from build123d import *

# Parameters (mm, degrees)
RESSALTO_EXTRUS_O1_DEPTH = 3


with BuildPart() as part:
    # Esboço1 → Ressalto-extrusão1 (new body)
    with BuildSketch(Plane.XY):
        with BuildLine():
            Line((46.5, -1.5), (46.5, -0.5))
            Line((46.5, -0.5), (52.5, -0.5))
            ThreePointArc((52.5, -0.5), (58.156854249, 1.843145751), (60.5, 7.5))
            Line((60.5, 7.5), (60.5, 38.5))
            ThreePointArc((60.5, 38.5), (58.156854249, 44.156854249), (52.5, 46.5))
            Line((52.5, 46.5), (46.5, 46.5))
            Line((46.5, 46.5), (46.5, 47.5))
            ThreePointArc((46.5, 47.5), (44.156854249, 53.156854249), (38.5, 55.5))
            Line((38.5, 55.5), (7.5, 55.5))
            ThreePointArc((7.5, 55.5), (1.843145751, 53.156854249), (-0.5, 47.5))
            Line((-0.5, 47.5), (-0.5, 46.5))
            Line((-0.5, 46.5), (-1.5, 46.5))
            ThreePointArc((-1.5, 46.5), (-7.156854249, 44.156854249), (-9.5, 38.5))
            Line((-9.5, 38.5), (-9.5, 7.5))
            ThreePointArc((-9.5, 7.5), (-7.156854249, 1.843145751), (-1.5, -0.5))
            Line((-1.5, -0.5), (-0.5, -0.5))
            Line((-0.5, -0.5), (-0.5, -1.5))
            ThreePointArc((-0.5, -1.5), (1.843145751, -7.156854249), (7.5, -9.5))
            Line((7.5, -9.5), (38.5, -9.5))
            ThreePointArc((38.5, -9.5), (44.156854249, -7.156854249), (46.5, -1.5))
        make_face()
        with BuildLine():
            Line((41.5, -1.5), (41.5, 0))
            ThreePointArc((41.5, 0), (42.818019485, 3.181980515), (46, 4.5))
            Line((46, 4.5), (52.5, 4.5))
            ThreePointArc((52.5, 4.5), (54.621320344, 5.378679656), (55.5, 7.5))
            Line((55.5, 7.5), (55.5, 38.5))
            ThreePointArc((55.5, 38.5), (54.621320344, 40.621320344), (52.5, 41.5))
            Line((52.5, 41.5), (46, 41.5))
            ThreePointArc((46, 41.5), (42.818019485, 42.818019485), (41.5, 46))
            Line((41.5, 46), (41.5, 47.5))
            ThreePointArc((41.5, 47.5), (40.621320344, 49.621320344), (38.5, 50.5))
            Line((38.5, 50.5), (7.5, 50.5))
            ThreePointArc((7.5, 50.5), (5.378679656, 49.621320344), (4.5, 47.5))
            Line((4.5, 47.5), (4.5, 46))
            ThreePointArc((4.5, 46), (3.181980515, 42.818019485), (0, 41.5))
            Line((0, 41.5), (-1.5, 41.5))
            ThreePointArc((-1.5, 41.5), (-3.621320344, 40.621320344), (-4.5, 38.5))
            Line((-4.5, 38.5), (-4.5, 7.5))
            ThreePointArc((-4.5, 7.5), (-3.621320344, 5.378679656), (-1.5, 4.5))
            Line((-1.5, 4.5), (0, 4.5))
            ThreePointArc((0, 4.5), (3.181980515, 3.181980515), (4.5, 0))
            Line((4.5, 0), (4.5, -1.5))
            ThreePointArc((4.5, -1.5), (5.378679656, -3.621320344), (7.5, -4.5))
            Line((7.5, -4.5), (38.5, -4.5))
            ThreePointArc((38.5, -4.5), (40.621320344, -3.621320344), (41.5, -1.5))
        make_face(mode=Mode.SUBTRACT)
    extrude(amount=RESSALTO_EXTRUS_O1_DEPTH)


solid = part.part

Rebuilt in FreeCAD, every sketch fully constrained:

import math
import FreeCAD as App
import Part
import Sketcher
from FreeCAD import Vector
Q = App.Units.Quantity

doc = App.newDocument("Part")
params = doc.addObject("Spreadsheet::Sheet", "Params")
for row, (alias, value) in enumerate([
    ("sketch1_radius", "8 mm"),
    ("sketch1_radius2", "3 mm"),
    ("sketch1_radius3", "4.5 mm"),
    ("sketch1_width", "6 mm"),
    ("sketch1_width2", "31 mm"),
    ("pad1_length", "3 mm"),
], start=1):
    params.set(f"A{row}", alias)
    params.set(f"B{row}", "=" + value)
    params.setAlias(f"B{row}", alias)

body = doc.addObject("PartDesign::Body", "Body")

sketch1 = body.newObject("Sketcher::SketchObject", "Sketch")
sketch1.AttachmentSupport = (doc.getObject("XY_Plane"), [""])
sketch1.MapMode = "FlatFace"
sketch1.addGeometry(Part.LineSegment(Vector(46.5, -1.5, 0), Vector(46.5, -0.5, 0)), False)
sketch1.addGeometry(Part.LineSegment(Vector(46.5, -0.5, 0), Vector(52.5, -0.5, 0)), False)
sketch1.addGeometry(Part.ArcOfCircle(Part.Circle(Vector(52.5, 7.5, 0), Vector(0, 0, 1), 8), math.radians(-90), math.radians(0)), False)
sketch1.addGeometry(Part.LineSegment(Vector(60.5, 7.5, 0), Vector(60.5, 38.5, 0)), False)
sketch1.addGeometry(Part.ArcOfCircle(Part.Circle(Vector(52.5, 38.5, 0), Vector(0, 0, 1), 8), math.radians(0), math.radians(90)), False)
sketch1.addGeometry(Part.LineSegment(Vector(52.5, 46.5, 0), Vector(46.5, 46.5, 0)), False)
sketch1.addGeometry(Part.LineSegment(Vector(46.5, 46.5, 0), Vector(46.5, 47.5, 0)), False)
sketch1.addGeometry(Part.ArcOfCircle(Part.Circle(Vector(38.5, 47.5, 0), Vector(0, 0, 1), 8), math.radians(0), math.radians(90)), False)
sketch1.addGeometry(Part.LineSegment(Vector(38.5, 55.5, 0), Vector(7.5, 55.5, 0)), False)
sketch1.addGeometry(Part.ArcOfCircle(Part.Circle(Vector(7.5, 47.5, 0), Vector(0, 0, 1), 8), math.radians(90), math.radians(180)), False)
sketch1.addGeometry(Part.LineSegment(Vector(-0.5, 47.5, 0), Vector(-0.5, 46.5, 0)), False)
sketch1.addGeometry(Part.LineSegment(Vector(-0.5, 46.5, 0), Vector(-1.5, 46.5, 0)), False)
sketch1.addGeometry(Part.ArcOfCircle(Part.Circle(Vector(-1.5, 38.5, 0), Vector(0, 0, 1), 8), math.radians(90), math.radians(180)), False)
sketch1.addGeometry(Part.LineSegment(Vector(-9.5, 38.5, 0), Vector(-9.5, 7.5, 0)), False)
sketch1.addGeometry(Part.ArcOfCircle(Part.Circle(Vector(-1.5, 7.5, 0), Vector(0, 0, 1), 8), math.radians(-180), math.radians(-90)), False)
sketch1.addGeometry(Part.LineSegment(Vector(-1.5, -0.5, 0), Vector(-0.5, -0.5, 0)), False)
sketch1.addGeometry(Part.LineSegment(Vector(-0.5, -0.5, 0), Vector(-0.5, -1.5, 0)), False)
sketch1.addGeometry(Part.ArcOfCircle(Part.Circle(Vector(7.5, -1.5, 0), Vector(0, 0, 1), 8), math.radians(-180), math.radians(-90)), False)
sketch1.addGeometry(Part.LineSegment(Vector(7.5, -9.5, 0), Vector(38.5, -9.5, 0)), False)
sketch1.addGeometry(Part.ArcOfCircle(Part.Circle(Vector(38.5, -1.5, 0), Vector(0, 0, 1), 8), math.radians(-90), math.radians(0)), False)
sketch1.addGeometry(Part.LineSegment(Vector(41.5, 0, 0), Vector(41.5, -1.5, 0)), False)
sketch1.addGeometry(Part.ArcOfCircle(Part.Circle(Vector(38.5, -1.5, 0), Vector(0, 0, 1), 3), math.radians(-90), math.radians(0)), False)
sketch1.addGeometry(Part.LineSegment(Vector(38.5, -4.5, 0), Vector(7.5, -4.5, 0)), False)
sketch1.addGeometry(Part.ArcOfCircle(Part.Circle(Vector(7.5, -1.5, 0), Vector(0, 0, 1), 3), math.radians(180), math.radians(270)), False)
sketch1.addGeometry(Part.LineSegment(Vector(4.5, -1.5, 0), Vector(4.5, 0, 0)), False)
sketch1.addGeometry(Part.ArcOfCircle(Part.Circle(Vector(0, 0, 0), Vector(0, 0, 1), 4.5), math.radians(0), math.radians(90)), False)
sketch1.addGeometry(Part.LineSegment(Vector(0, 4.5, 0), Vector(-1.5, 4.5, 0)), False)
sketch1.addGeometry(Part.ArcOfCircle(Part.Circle(Vector(-1.5, 7.5, 0), Vector(0, 0, 1), 3), math.radians(180), math.radians(270)), False)
sketch1.addGeometry(Part.LineSegment(Vector(-4.5, 7.5, 0), Vector(-4.5, 38.5, 0)), False)
sketch1.addGeometry(Part.ArcOfCircle(Part.Circle(Vector(-1.5, 38.5, 0), Vector(0, 0, 1), 3), math.radians(90), math.radians(180)), False)
sketch1.addGeometry(Part.LineSegment(Vector(-1.5, 41.5, 0), Vector(0, 41.5, 0)), False)
sketch1.addGeometry(Part.ArcOfCircle(Part.Circle(Vector(0, 46, 0), Vector(0, 0, 1), 4.5), math.radians(-90), math.radians(0)), False)
sketch1.addGeometry(Part.LineSegment(Vector(4.5, 46, 0), Vector(4.5, 47.5, 0)), False)
sketch1.addGeometry(Part.ArcOfCircle(Part.Circle(Vector(7.5, 47.5, 0), Vector(0, 0, 1), 3), math.radians(90), math.radians(180)), False)
sketch1.addGeometry(Part.LineSegment(Vector(7.5, 50.5, 0), Vector(38.5, 50.5, 0)), False)
sketch1.addGeometry(Part.ArcOfCircle(Part.Circle(Vector(38.5, 47.5, 0), Vector(0, 0, 1), 3), math.radians(0), math.radians(90)), False)
sketch1.addGeometry(Part.LineSegment(Vector(41.5, 47.5, 0), Vector(41.5, 46, 0)), False)
sketch1.addGeometry(Part.ArcOfCircle(Part.Circle(Vector(46, 46, 0), Vector(0, 0, 1), 4.5), math.radians(-180), math.radians(-90)), False)
sketch1.addGeometry(Part.LineSegment(Vector(46, 41.5, 0), Vector(52.5, 41.5, 0)), False)
sketch1.addGeometry(Part.ArcOfCircle(Part.Circle(Vector(52.5, 38.5, 0), Vector(0, 0, 1), 3), math.radians(0), math.radians(90)), False)
sketch1.addGeometry(Part.LineSegment(Vector(55.5, 38.5, 0), Vector(55.5, 7.5, 0)), False)
sketch1.addGeometry(Part.ArcOfCircle(Part.Circle(Vector(52.5, 7.5, 0), Vector(0, 0, 1), 3), math.radians(-90), math.radians(0)), False)
sketch1.addGeometry(Part.LineSegment(Vector(52.5, 4.5, 0), Vector(46, 4.5, 0)), False)
sketch1.addGeometry(Part.ArcOfCircle(Part.Circle(Vector(46, 0, 0), Vector(0, 0, 1), 4.5), math.radians(90), math.radians(180)), False)
sketch1.addConstraint(Sketcher.Constraint("Coincident", 0, 2, 1, 1))
sketch1.addConstraint(Sketcher.Constraint("Tangent", 1, 2, 2, 1))
sketch1.addConstraint(Sketcher.Constraint("Tangent", 2, 2, 3, 1))
sketch1.addConstraint(Sketcher.Constraint("Tangent", 3, 2, 4, 1))
sketch1.addConstraint(Sketcher.Constraint("Tangent", 4, 2, 5, 1))
sketch1.addConstraint(Sketcher.Constraint("Coincident", 5, 2, 6, 1))
sketch1.addConstraint(Sketcher.Constraint("Tangent", 6, 2, 7, 1))
sketch1.addConstraint(Sketcher.Constraint("Tangent", 7, 2, 8, 1))
sketch1.addConstraint(Sketcher.Constraint("Tangent", 8, 2, 9, 1))
sketch1.addConstraint(Sketcher.Constraint("Tangent", 9, 2, 10, 1))
sketch1.addConstraint(Sketcher.Constraint("Coincident", 10, 2, 11, 1))
sketch1.addConstraint(Sketcher.Constraint("Tangent", 11, 2, 12, 1))
sketch1.addConstraint(Sketcher.Constraint("Tangent", 12, 2, 13, 1))
sketch1.addConstraint(Sketcher.Constraint("Tangent", 13, 2, 14, 1))
sketch1.addConstraint(Sketcher.Constraint("Tangent", 14, 2, 15, 1))
sketch1.addConstraint(Sketcher.Constraint("Coincident", 15, 2, 16, 1))
sketch1.addConstraint(Sketcher.Constraint("Tangent", 16, 2, 17, 1))
sketch1.addConstraint(Sketcher.Constraint("Tangent", 17, 2, 18, 1))
sketch1.addConstraint(Sketcher.Constraint("Tangent", 18, 2, 19, 1))
sketch1.addConstraint(Sketcher.Constraint("Tangent", 19, 2, 0, 1))
sketch1.addConstraint(Sketcher.Constraint("Tangent", 20, 2, 21, 2))
sketch1.addConstraint(Sketcher.Constraint("Tangent", 21, 1, 22, 1))
sketch1.addConstraint(Sketcher.Constraint("Tangent", 22, 2, 23, 2))
sketch1.addConstraint(Sketcher.Constraint("Tangent", 23, 1, 24, 1))
sketch1.addConstraint(Sketcher.Constraint("Tangent", 24, 2, 25, 1))
sketch1.addConstraint(Sketcher.Constraint("Tangent", 25, 2, 26, 1))
sketch1.addConstraint(Sketcher.Constraint("Tangent", 26, 2, 27, 2))
sketch1.addConstraint(Sketcher.Constraint("Tangent", 27, 1, 28, 1))
sketch1.addConstraint(Sketcher.Constraint("Tangent", 28, 2, 29, 2))
sketch1.addConstraint(Sketcher.Constraint("Tangent", 29, 1, 30, 1))
sketch1.addConstraint(Sketcher.Constraint("Tangent", 30, 2, 31, 1))
sketch1.addConstraint(Sketcher.Constraint("Tangent", 31, 2, 32, 1))
sketch1.addConstraint(Sketcher.Constraint("Tangent", 32, 2, 33, 2))
sketch1.addConstraint(Sketcher.Constraint("Tangent", 33, 1, 34, 1))
sketch1.addConstraint(Sketcher.Constraint("Tangent", 34, 2, 35, 2))
sketch1.addConstraint(Sketcher.Constraint("Tangent", 35, 1, 36, 1))
sketch1.addConstraint(Sketcher.Constraint("Tangent", 36, 2, 37, 1))
sketch1.addConstraint(Sketcher.Constraint("Tangent", 37, 2, 38, 1))
sketch1.addConstraint(Sketcher.Constraint("Tangent", 38, 2, 39, 2))
sketch1.addConstraint(Sketcher.Constraint("Tangent", 39, 1, 40, 1))
sketch1.addConstraint(Sketcher.Constraint("Tangent", 40, 2, 41, 2))
sketch1.addConstraint(Sketcher.Constraint("Tangent", 41, 1, 42, 1))
sketch1.addConstraint(Sketcher.Constraint("Tangent", 42, 2, 43, 1))
sketch1.addConstraint(Sketcher.Constraint("Tangent", 43, 2, 20, 1))
sketch1.addConstraint(Sketcher.Constraint("Vertical", 0))
sketch1.addConstraint(Sketcher.Constraint("Horizontal", 1))
sketch1.addConstraint(Sketcher.Constraint("Vertical", 3))
sketch1.addConstraint(Sketcher.Constraint("Horizontal", 5))
sketch1.addConstraint(Sketcher.Constraint("Vertical", 6))
sketch1.addConstraint(Sketcher.Constraint("Horizontal", 8))
sketch1.addConstraint(Sketcher.Constraint("Vertical", 10))
sketch1.addConstraint(Sketcher.Constraint("Horizontal", 11))
sketch1.addConstraint(Sketcher.Constraint("Vertical", 13))
sketch1.addConstraint(Sketcher.Constraint("Horizontal", 15))
sketch1.addConstraint(Sketcher.Constraint("Vertical", 16))
sketch1.addConstraint(Sketcher.Constraint("Horizontal", 18))
sketch1.addConstraint(Sketcher.Constraint("Vertical", 20))
sketch1.addConstraint(Sketcher.Constraint("Horizontal", 22))
sketch1.addConstraint(Sketcher.Constraint("Vertical", 24))
sketch1.addConstraint(Sketcher.Constraint("Horizontal", 26))
sketch1.addConstraint(Sketcher.Constraint("Vertical", 28))
sketch1.addConstraint(Sketcher.Constraint("Horizontal", 30))
sketch1.addConstraint(Sketcher.Constraint("Vertical", 32))
sketch1.addConstraint(Sketcher.Constraint("Horizontal", 34))
sketch1.addConstraint(Sketcher.Constraint("Vertical", 36))
sketch1.addConstraint(Sketcher.Constraint("Horizontal", 38))
sketch1.addConstraint(Sketcher.Constraint("Vertical", 40))
sketch1.addConstraint(Sketcher.Constraint("Horizontal", 42))
sketch1.addConstraint(Sketcher.Constraint("Coincident", 25, 3, -1, 1))
sketch1.addConstraint(Sketcher.Constraint("Coincident", 21, 3, 19, 3))
sketch1.addConstraint(Sketcher.Constraint("Coincident", 23, 3, 17, 3))
sketch1.addConstraint(Sketcher.Constraint("Coincident", 27, 3, 14, 3))
sketch1.addConstraint(Sketcher.Constraint("Coincident", 29, 3, 12, 3))
sketch1.addConstraint(Sketcher.Constraint("Coincident", 33, 3, 9, 3))
sketch1.addConstraint(Sketcher.Constraint("Coincident", 35, 3, 7, 3))
sketch1.addConstraint(Sketcher.Constraint("Coincident", 39, 3, 4, 3))
sketch1.addConstraint(Sketcher.Constraint("Coincident", 41, 3, 2, 3))
sketch1.addConstraint(Sketcher.Constraint("Equal", 2, 4))
sketch1.addConstraint(Sketcher.Constraint("Equal", 4, 7))
sketch1.addConstraint(Sketcher.Constraint("Equal", 7, 9))
sketch1.addConstraint(Sketcher.Constraint("Equal", 9, 12))
sketch1.addConstraint(Sketcher.Constraint("Equal", 12, 14))
sketch1.addConstraint(Sketcher.Constraint("Equal", 14, 17))
sketch1.addConstraint(Sketcher.Constraint("Equal", 17, 19))
sketch1.addConstraint(Sketcher.Constraint("Equal", 23, 27))
sketch1.addConstraint(Sketcher.Constraint("Equal", 25, 31))
sketch1.addConstraint(Sketcher.Constraint("Equal", 29, 33))
sketch1.addConstraint(Sketcher.Constraint("Equal", 31, 37))
sketch1.addConstraint(Sketcher.Constraint("Equal", 35, 39))
sketch1.addConstraint(Sketcher.Constraint("Equal", 37, 43))
sketch1.addConstraint(Sketcher.Constraint("PointOnObject", 31, 3, -2))
sketch1.addConstraint(Sketcher.Constraint("PointOnObject", 43, 3, -1))
sketch1.addConstraint(Sketcher.Constraint("Horizontal", 4, 3, 12, 3))
sketch1.addConstraint(Sketcher.Constraint("Vertical", 7, 3, 19, 3))
sketch1.addConstraint(Sketcher.Constraint("Equal", 15, 0))
sketch1.addConstraint(Sketcher.Constraint("Equal", 34, 3))
sketch1.addConstraint(Sketcher.Constraint("Equal", 0, 6))
sketch1.addConstraint(Sketcher.Constraint("Radius", 2, Q("8 mm")))
sketch1.addConstraint(Sketcher.Constraint("Radius", 21, Q("3 mm")))
sketch1.addConstraint(Sketcher.Constraint("Radius", 25, Q("4.5 mm")))
sketch1.addConstraint(Sketcher.Constraint("DistanceX", 1, 1, 1, 2, Q("6 mm")))
sketch1.addConstraint(Sketcher.Constraint("DistanceX", 8, 2, 8, 1, Q("31 mm")))
sketch1.addConstraint(Sketcher.Constraint("DistanceX", 11, 2, 11, 1, Q("1 mm")))
sketch1.setExpression("Constraints[97]", "Params.sketch1_radius")
sketch1.setExpression("Constraints[98]", "Params.sketch1_radius2")
sketch1.setExpression("Constraints[99]", "Params.sketch1_radius3")
sketch1.setExpression("Constraints[100]", "Params.sketch1_width")
sketch1.setExpression("Constraints[101]", "Params.sketch1_width2")
pad1 = body.newObject("PartDesign::Pad", "Pad")
pad1.Profile = sketch1
pad1.setExpression("Length", "Params.pad1_length")

doc.recompute()
